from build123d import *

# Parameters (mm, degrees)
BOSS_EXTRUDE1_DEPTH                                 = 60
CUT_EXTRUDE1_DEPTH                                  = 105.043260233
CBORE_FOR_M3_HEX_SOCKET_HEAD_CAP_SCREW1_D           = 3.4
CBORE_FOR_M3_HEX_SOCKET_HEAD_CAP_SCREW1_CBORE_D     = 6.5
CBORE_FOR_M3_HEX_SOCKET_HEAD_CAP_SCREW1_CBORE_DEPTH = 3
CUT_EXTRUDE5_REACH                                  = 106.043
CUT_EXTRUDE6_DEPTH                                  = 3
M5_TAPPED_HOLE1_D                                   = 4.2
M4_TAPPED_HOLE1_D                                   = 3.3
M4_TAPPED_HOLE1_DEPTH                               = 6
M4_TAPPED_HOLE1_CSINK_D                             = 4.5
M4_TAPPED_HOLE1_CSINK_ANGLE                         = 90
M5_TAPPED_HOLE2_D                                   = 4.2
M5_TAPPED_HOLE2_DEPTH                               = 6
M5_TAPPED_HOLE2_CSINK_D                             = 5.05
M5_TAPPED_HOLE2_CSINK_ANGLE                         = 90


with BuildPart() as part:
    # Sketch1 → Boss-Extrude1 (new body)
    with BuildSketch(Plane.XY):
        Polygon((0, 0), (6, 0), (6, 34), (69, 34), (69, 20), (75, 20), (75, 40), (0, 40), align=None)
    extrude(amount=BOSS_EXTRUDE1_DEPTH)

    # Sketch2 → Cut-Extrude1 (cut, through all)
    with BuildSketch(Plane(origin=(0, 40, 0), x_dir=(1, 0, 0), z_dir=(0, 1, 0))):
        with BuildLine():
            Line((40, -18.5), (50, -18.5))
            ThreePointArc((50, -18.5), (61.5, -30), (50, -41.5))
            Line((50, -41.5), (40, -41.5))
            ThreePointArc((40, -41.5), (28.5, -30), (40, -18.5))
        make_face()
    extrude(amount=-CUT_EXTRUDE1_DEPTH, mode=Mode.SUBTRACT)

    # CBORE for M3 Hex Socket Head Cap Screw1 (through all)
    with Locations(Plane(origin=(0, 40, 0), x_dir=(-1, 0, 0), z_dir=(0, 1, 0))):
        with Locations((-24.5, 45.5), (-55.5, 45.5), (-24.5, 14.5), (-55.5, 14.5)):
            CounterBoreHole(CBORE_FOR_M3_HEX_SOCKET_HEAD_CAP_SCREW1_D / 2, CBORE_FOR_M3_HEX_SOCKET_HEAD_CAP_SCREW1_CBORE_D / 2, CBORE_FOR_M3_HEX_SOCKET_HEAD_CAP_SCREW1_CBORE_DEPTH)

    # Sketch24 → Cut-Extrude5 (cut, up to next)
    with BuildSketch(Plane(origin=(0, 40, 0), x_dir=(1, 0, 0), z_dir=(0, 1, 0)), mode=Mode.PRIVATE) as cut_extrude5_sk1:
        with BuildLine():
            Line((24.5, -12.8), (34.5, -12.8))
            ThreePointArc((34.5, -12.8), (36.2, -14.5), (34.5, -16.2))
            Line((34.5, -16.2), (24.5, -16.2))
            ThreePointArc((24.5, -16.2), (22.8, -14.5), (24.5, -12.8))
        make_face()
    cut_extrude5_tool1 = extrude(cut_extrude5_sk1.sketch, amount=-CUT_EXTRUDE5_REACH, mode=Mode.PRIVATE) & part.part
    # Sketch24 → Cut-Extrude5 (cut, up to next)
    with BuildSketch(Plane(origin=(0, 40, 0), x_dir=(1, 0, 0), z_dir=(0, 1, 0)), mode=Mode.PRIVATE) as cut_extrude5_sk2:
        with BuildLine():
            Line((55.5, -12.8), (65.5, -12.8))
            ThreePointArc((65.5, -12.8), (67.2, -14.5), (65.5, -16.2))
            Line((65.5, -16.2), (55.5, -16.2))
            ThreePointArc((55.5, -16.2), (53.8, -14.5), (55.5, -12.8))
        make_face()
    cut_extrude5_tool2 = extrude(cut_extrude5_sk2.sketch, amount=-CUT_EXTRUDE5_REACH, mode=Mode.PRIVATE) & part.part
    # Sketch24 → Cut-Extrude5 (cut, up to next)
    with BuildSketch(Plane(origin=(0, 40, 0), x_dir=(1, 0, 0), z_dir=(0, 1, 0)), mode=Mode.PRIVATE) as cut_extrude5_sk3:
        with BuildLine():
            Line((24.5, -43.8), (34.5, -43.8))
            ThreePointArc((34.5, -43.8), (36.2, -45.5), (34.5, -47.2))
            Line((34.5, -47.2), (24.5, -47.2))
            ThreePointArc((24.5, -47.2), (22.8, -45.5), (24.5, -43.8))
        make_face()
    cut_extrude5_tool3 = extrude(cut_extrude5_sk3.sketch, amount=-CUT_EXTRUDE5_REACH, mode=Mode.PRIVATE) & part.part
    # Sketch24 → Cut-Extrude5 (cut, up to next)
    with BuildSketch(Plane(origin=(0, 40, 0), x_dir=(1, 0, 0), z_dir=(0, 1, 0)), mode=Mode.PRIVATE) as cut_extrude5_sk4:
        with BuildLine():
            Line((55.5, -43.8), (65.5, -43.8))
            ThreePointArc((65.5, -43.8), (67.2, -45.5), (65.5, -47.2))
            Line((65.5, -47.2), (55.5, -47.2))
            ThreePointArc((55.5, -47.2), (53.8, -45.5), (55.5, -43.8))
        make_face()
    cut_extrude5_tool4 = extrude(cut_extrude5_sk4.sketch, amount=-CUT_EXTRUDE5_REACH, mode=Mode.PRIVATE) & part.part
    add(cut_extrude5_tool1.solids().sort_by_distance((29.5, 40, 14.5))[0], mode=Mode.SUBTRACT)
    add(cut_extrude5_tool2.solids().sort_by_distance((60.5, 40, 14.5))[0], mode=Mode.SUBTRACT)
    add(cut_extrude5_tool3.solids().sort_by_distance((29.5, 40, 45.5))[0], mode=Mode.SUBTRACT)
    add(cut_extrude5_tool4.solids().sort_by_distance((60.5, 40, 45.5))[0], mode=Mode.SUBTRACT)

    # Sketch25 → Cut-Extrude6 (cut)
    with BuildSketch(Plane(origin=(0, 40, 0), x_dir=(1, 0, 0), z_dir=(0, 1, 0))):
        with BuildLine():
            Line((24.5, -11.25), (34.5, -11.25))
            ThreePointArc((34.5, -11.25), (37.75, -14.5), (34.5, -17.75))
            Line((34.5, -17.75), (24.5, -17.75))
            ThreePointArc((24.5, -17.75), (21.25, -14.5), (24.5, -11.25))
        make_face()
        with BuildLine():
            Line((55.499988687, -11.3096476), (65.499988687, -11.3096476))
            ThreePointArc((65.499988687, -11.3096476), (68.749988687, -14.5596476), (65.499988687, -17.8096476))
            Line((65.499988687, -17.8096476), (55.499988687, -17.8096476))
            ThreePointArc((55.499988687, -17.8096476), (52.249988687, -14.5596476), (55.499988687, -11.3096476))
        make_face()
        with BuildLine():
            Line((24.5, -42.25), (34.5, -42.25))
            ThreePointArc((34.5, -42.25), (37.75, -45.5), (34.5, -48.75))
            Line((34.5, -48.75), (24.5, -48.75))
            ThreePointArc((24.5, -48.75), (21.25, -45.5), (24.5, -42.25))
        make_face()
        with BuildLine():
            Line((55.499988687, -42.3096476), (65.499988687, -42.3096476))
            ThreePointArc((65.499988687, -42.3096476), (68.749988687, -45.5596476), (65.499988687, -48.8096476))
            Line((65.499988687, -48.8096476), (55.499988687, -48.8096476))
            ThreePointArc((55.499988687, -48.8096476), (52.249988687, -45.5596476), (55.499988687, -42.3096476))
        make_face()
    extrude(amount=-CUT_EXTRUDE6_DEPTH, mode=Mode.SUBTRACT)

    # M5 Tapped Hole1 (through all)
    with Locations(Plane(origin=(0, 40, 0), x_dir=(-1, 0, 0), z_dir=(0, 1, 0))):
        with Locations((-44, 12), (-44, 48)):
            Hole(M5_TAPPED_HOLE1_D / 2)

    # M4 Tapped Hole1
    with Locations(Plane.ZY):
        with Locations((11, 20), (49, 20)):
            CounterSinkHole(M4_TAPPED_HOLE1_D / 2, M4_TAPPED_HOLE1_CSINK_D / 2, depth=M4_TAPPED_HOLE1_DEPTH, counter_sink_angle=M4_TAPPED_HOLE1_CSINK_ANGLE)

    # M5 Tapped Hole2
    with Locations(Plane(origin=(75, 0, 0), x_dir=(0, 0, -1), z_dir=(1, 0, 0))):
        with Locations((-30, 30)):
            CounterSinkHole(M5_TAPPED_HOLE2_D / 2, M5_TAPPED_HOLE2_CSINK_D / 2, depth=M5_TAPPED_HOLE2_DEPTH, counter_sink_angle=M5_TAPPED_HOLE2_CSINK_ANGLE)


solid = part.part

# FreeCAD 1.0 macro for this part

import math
import FreeCAD as App
import Part
import Sketcher

V = App.Vector


def add_polygon(sketch, points):
    """Adds a closed chain of lines whose ends are joined by coincident constraints."""
    first, n = sketch.GeometryCount, len(points)
    for a, b in zip(points, points[1:] + points[:1]):
        sketch.addGeometry(Part.LineSegment(App.Vector(*a, 0), App.Vector(*b, 0)), False)
    for i in range(n):
        sketch.addConstraint(Sketcher.Constraint("Coincident", first + i, 2, first + (i + 1) % n, 1))

doc = App.newDocument("Part")
params = doc.addObject("Spreadsheet::Sheet", "Params")
for row, (alias, value) in enumerate([
    ("sketch1_width", "6 mm"),
    ("sketch1_width2", "63 mm"),
    ("sketch1_height", "34 mm"),
    ("sketch1_height2", "14 mm"),
    ("sketch1_height3", "20 mm"),
    ("pad1_length", "60 mm"),
    ("sketch2_radius", "11.5 mm"),
    ("sketch2_width", "10 mm"),
    ("sketch3_diameter", "3.4 mm"),
    ("hole_diameter", "3.4 mm"),
    ("hole_cbore_diameter", "6.5 mm"),
    ("hole_cbore_depth", "3 mm"),
    ("sketch4_radius", "1.7 mm"),
    ("sketch4_width", "10 mm"),
    ("sketch5_radius", "1.7 mm"),
    ("sketch5_width", "10 mm"),
    ("sketch6_radius", "1.7 mm"),
    ("sketch6_width", "10 mm"),
    ("sketch7_radius", "1.7 mm"),
    ("sketch7_width", "10 mm"),
    ("sketch8_width", "10 mm"),
    ("sketch8_radius", "3.25 mm"),
    ("pocket6_length", "3 mm"),
    ("sketch9_diameter", "4.2 mm"),
    ("hole2_diameter", "4.2 mm"),
    ("sketch10_diameter", "3.3 mm"),
    ("hole3_diameter", "3.3 mm"),
    ("hole3_depth", "6 mm"),
    ("hole3_csink_diameter", "4.5 mm"),
    ("sketch11_diameter", "4.2 mm"),
    ("hole4_diameter", "4.2 mm"),
    ("hole4_depth", "6 mm"),
    ("hole4_csink_diameter", "5.05 mm"),
], start=1):
    params.set(f"A{row}", alias)
    params.set(f"B{row}", "=" + value)
    params.setAlias(f"B{row}", alias)

body = doc.addObject("PartDesign::Body", "Body")

sketch1 = doc.addObject("Sketcher::SketchObject", "Sketch")
body.addObject(sketch1)
sketch1.AttachmentSupport = (doc.XY_Plane, [""])
sketch1.MapMode = "FlatFace"
add_polygon(sketch1, [(0, 0), (6, 0), (6, 34), (69, 34), (69, 20), (75, 20), (75, 40), (0, 40)])
sketch1.addConstraint([
    Sketcher.Constraint("Horizontal", 0),
    Sketcher.Constraint("Vertical", 1),
    Sketcher.Constraint("Horizontal", 2),
    Sketcher.Constraint("Vertical", 3),
    Sketcher.Constraint("Horizontal", 4),
    Sketcher.Constraint("Vertical", 5),
    Sketcher.Constraint("Horizontal", 6),
    Sketcher.Constraint("Vertical", 7),
    Sketcher.Constraint("Coincident", 7, 2, -1, 1),
    Sketcher.Constraint("Equal", 0, 4),
    Sketcher.Constraint("DistanceX", 0, 1, 0, 2, 6.0),
    Sketcher.Constraint("DistanceX", 2, 1, 2, 2, 63.0),
    Sketcher.Constraint("DistanceY", 1, 1, 1, 2, 34.0),
    Sketcher.Constraint("DistanceY", 3, 2, 3, 1, 14.0),
    Sketcher.Constraint("DistanceY", 5, 1, 5, 2, 20.0),
])
sketch1.setExpression("Constraints[18]", "Params.sketch1_width")
sketch1.setExpression("Constraints[19]", "Params.sketch1_width2")
sketch1.setExpression("Constraints[20]", "Params.sketch1_height")
sketch1.setExpression("Constraints[21]", "Params.sketch1_height2")
sketch1.setExpression("Constraints[22]", "Params.sketch1_height3")
pad1 = doc.addObject("PartDesign::Pad", "Pad")
body.addObject(pad1)
pad1.Profile = sketch1
pad1.setExpression("Length", "Params.pad1_length")

sketch2 = doc.addObject("Sketcher::SketchObject", "Sketch001")
body.addObject(sketch2)
sketch2.AttachmentSupport = (doc.XZ_Plane, [""])
sketch2.MapMode = "FlatFace"
sketch2.AttachmentOffset = App.Placement(V(0, 0, -40), App.Rotation())
sketch2.addGeometry([
    Part.LineSegment(V(50, 18, 0), V(40, 18, 0)),
    Part.ArcOfCircle(Part.Circle(V(40, 30, 0), V(0, 0, 1), 12), math.radians(90), math.radians(270)),
    Part.LineSegment(V(40, 42, 0), V(50, 42, 0)),
    Part.ArcOfCircle(Part.Circle(V(50, 30, 0), V(0, 0, 1), 12), math.radians(-90), math.radians(90)),
], False)
sketch2.addConstraint([
    Sketcher.Constraint("Tangent", 0, 2, 1, 2),
    Sketcher.Constraint("Tangent", 1, 1, 2, 1),
    Sketcher.Constraint("Tangent", 2, 2, 3, 2),
    Sketcher.Constraint("Tangent", 3, 1, 0, 1),
    Sketcher.Constraint("Horizontal", 0),
    Sketcher.Constraint("Horizontal", 2),
    Sketcher.Constraint("Radius", 1, 11.5),
    Sketcher.Constraint("DistanceX", 0, 2, 0, 1, 10.0),
    Sketcher.Constraint("DistanceX", -1, 1, 1, 3, 40.0),
    Sketcher.Constraint("DistanceY", -1, 1, 1, 3, 30.0),
])
sketch2.setExpression("Constraints[6]", "Params.sketch2_radius")
sketch2.setExpression("Constraints[7]", "Params.sketch2_width")
pocket1 = doc.addObject("PartDesign::Pocket", "Pocket")
body.addObject(pocket1)
pocket1.Profile = sketch2
pocket1.Type = "ThroughAll"
pocket1.Reversed = True

sketch3 = doc.addObject("Sketcher::SketchObject", "Sketch002")
body.addObject(sketch3)
sketch3.AttachmentSupport = (doc.XZ_Plane, [""])
sketch3.MapMode = "FlatFace"
sketch3.AttachmentOffset = App.Placement(V(0, 0, -40), App.Rotation())
sketch3.addGeometry([
    Part.Circle(V(24.5, 45.5, 0), V(0, 0, 1), 1.7),
    Part.Circle(V(55.5, 45.5, 0), V(0, 0, 1), 1.7),
    Part.Circle(V(24.5, 14.5, 0), V(0, 0, 1), 1.7),
    Part.Circle(V(55.5, 14.5, 0), V(0, 0, 1), 1.7),
], False)
sketch3.addConstraint([
    Sketcher.Constraint("Equal", 0, 1),
    Sketcher.Constraint("Equal", 1, 2),
    Sketcher.Constraint("Equal", 2, 3),
    Sketcher.Constraint("Horizontal", 0, 3, 1, 3),
    Sketcher.Constraint("Horizontal", 2, 3, 3, 3),
    Sketcher.Constraint("Vertical", 0, 3, 2, 3),
    Sketcher.Constraint("Vertical", 1, 3, 3, 3),
    Sketcher.Constraint("Diameter", 0, 3.4),
    Sketcher.Constraint("DistanceX", 0, 3, 1, 3, 31.0),
    Sketcher.Constraint("DistanceY", 2, 3, 0, 3, 31.0),
    Sketcher.Constraint("DistanceX", -1, 1, 0, 3, 24.5),
    Sketcher.Constraint("DistanceY", -1, 1, 0, 3, 45.5),
])
sketch3.setExpression("Constraints[7]", "Params.sketch3_diameter")
doc.recompute()
hole = doc.addObject("PartDesign::Hole", "Hole")
body.addObject(hole)
hole.Profile = sketch3
hole.ThreadType = "None"
hole.setExpression("Diameter", "Params.hole_diameter")
hole.DepthType = "ThroughAll"
hole.HoleCutType = "Counterbore"
hole.setExpression("HoleCutDiameter", "Params.hole_cbore_diameter")
hole.setExpression("HoleCutDepth", "Params.hole_cbore_depth")
hole.Reversed = True

sketch4 = doc.addObject("Sketcher::SketchObject", "Sketch003")
body.addObject(sketch4)
sketch4.AttachmentSupport = (doc.XZ_Plane, [""])
sketch4.MapMode = "FlatFace"
sketch4.AttachmentOffset = App.Placement(V(0, 0, -40), App.Rotation())
sketch4.addGeometry([
    Part.LineSegment(V(34.5, 12.8, 0), V(24.5, 12.8, 0)),
    Part.ArcOfCircle(Part.Circle(V(24.5, 14.5, 0), V(0, 0, 1), 1.7), math.radians(90), math.radians(270)),
    Part.LineSegment(V(24.5, 16.2, 0), V(34.5, 16.2, 0)),
    Part.ArcOfCircle(Part.Circle(V(34.5, 14.5, 0), V(0, 0, 1), 1.7), math.radians(-90), math.radians(90)),
], False)
sketch4.addConstraint([
    Sketcher.Constraint("Tangent", 0, 2, 1, 2),
    Sketcher.Constraint("Tangent", 1, 1, 2, 1),
    Sketcher.Constraint("Tangent", 2, 2, 3, 2),
    Sketcher.Constraint("Tangent", 3, 1, 0, 1),
    Sketcher.Constraint("Horizontal", 0),
    Sketcher.Constraint("Horizontal", 2),
    Sketcher.Constraint("Radius", 1, 1.7),
    Sketcher.Constraint("DistanceX", 0, 2, 0, 1, 10.0),
    Sketcher.Constraint("DistanceX", -1, 1, 1, 3, 24.5),
    Sketcher.Constraint("DistanceY", -1, 1, 1, 3, 14.5),
])
sketch4.setExpression("Constraints[6]", "Params.sketch4_radius")
sketch4.setExpression("Constraints[7]", "Params.sketch4_width")
pocket2 = doc.addObject("PartDesign::Pocket", "Pocket001")
body.addObject(pocket2)
pocket2.Profile = sketch4
pocket2.Type = "UpToFirst"
pocket2.Reversed = True

sketch5 = doc.addObject("Sketcher::SketchObject", "Sketch004")
body.addObject(sketch5)
sketch5.AttachmentSupport = (doc.XZ_Plane, [""])
sketch5.MapMode = "FlatFace"
sketch5.AttachmentOffset = App.Placement(V(0, 0, -40), App.Rotation())
sketch5.addGeometry([
    Part.LineSegment(V(65.5, 12.8, 0), V(55.5, 12.8, 0)),
    Part.ArcOfCircle(Part.Circle(V(55.5, 14.5, 0), V(0, 0, 1), 1.7), math.radians(90), math.radians(270)),
    Part.LineSegment(V(55.5, 16.2, 0), V(65.5, 16.2, 0)),
    Part.ArcOfCircle(Part.Circle(V(65.5, 14.5, 0), V(0, 0, 1), 1.7), math.radians(-90), math.radians(90)),
], False)
sketch5.addConstraint([
    Sketcher.Constraint("Tangent", 0, 2, 1, 2),
    Sketcher.Constraint("Tangent", 1, 1, 2, 1),
    Sketcher.Constraint("Tangent", 2, 2, 3, 2),
    Sketcher.Constraint("Tangent", 3, 1, 0, 1),
    Sketcher.Constraint("Horizontal", 0),
    Sketcher.Constraint("Horizontal", 2),
    Sketcher.Constraint("Radius", 1, 1.7),
    Sketcher.Constraint("DistanceX", 0, 2, 0, 1, 10.0),
    Sketcher.Constraint("DistanceX", -1, 1, 1, 3, 55.5),
    Sketcher.Constraint("DistanceY", -1, 1, 1, 3, 14.5),
])
sketch5.setExpression("Constraints[6]", "Params.sketch5_radius")
sketch5.setExpression("Constraints[7]", "Params.sketch5_width")
pocket3 = doc.addObject("PartDesign::Pocket", "Pocket002")
body.addObject(pocket3)
pocket3.Profile = sketch5
pocket3.Type = "UpToFirst"
pocket3.Reversed = True

sketch6 = doc.addObject("Sketcher::SketchObject", "Sketch005")
body.addObject(sketch6)
sketch6.AttachmentSupport = (doc.XZ_Plane, [""])
sketch6.MapMode = "FlatFace"
sketch6.AttachmentOffset = App.Placement(V(0, 0, -40), App.Rotation())
sketch6.addGeometry([
    Part.LineSegment(V(34.5, 43.8, 0), V(24.5, 43.8, 0)),
    Part.ArcOfCircle(Part.Circle(V(24.5, 45.5, 0), V(0, 0, 1), 1.7), math.radians(90), math.radians(270)),
    Part.LineSegment(V(24.5, 47.2, 0), V(34.5, 47.2, 0)),
    Part.ArcOfCircle(Part.Circle(V(34.5, 45.5, 0), V(0, 0, 1), 1.7), math.radians(-90), math.radians(90)),
], False)
sketch6.addConstraint([
    Sketcher.Constraint("Tangent", 0, 2, 1, 2),
    Sketcher.Constraint("Tangent", 1, 1, 2, 1),
    Sketcher.Constraint("Tangent", 2, 2, 3, 2),
    Sketcher.Constraint("Tangent", 3, 1, 0, 1),
    Sketcher.Constraint("Horizontal", 0),
    Sketcher.Constraint("Horizontal", 2),
    Sketcher.Constraint("Radius", 1, 1.7),
    Sketcher.Constraint("DistanceX", 0, 2, 0, 1, 10.0),
    Sketcher.Constraint("DistanceX", -1, 1, 1, 3, 24.5),
    Sketcher.Constraint("DistanceY", -1, 1, 1, 3, 45.5),
])
sketch6.setExpression("Constraints[6]", "Params.sketch6_radius")
sketch6.setExpression("Constraints[7]", "Params.sketch6_width")
pocket4 = doc.addObject("PartDesign::Pocket", "Pocket003")
body.addObject(pocket4)
pocket4.Profile = sketch6
pocket4.Type = "UpToFirst"
pocket4.Reversed = True

sketch7 = doc.addObject("Sketcher::SketchObject", "Sketch006")
body.addObject(sketch7)
sketch7.AttachmentSupport = (doc.XZ_Plane, [""])
sketch7.MapMode = "FlatFace"
sketch7.AttachmentOffset = App.Placement(V(0, 0, -40), App.Rotation())
sketch7.addGeometry([
    Part.LineSegment(V(65.5, 43.8, 0), V(55.5, 43.8, 0)),
    Part.ArcOfCircle(Part.Circle(V(55.5, 45.5, 0), V(0, 0, 1), 1.7), math.radians(90), math.radians(270)),
    Part.LineSegment(V(55.5, 47.2, 0), V(65.5, 47.2, 0)),
    Part.ArcOfCircle(Part.Circle(V(65.5, 45.5, 0), V(0, 0, 1), 1.7), math.radians(-90), math.radians(90)),
], False)
sketch7.addConstraint([
    Sketcher.Constraint("Tangent", 0, 2, 1, 2),
    Sketcher.Constraint("Tangent", 1, 1, 2, 1),
    Sketcher.Constraint("Tangent", 2, 2, 3, 2),
    Sketcher.Constraint("Tangent", 3, 1, 0, 1),
    Sketcher.Constraint("Horizontal", 0),
    Sketcher.Constraint("Horizontal", 2),
    Sketcher.Constraint("Radius", 1, 1.7),
    Sketcher.Constraint("DistanceX", 0, 2, 0, 1, 10.0),
    Sketcher.Constraint("DistanceX", -1, 1, 1, 3, 55.5),
    Sketcher.Constraint("DistanceY", -1, 1, 1, 3, 45.5),
])
sketch7.setExpression("Constraints[6]", "Params.sketch7_radius")
sketch7.setExpression("Constraints[7]", "Params.sketch7_width")
pocket5 = doc.addObject("PartDesign::Pocket", "Pocket004")
body.addObject(pocket5)
pocket5.Profile = sketch7
pocket5.Type = "UpToFirst"
pocket5.Reversed = True

sketch8 = doc.addObject("Sketcher::SketchObject", "Sketch007")
body.addObject(sketch8)
sketch8.AttachmentSupport = (doc.XZ_Plane, [""])
sketch8.MapMode = "FlatFace"
sketch8.AttachmentOffset = App.Placement(V(0, 0, -40), App.Rotation())
sketch8.addGeometry([
    Part.LineSegment(V(34.5, 11.2, 0), V(24.5, 11.2, 0)),
    Part.ArcOfCircle(Part.Circle(V(24.5, 14.5, 0), V(0, 0, 1), 3.2), math.radians(90), math.radians(270)),
    Part.LineSegment(V(24.5, 17.8, 0), V(34.5, 17.8, 0)),
    Part.ArcOfCircle(Part.Circle(V(34.5, 14.5, 0), V(0, 0, 1), 3.2), math.radians(-90), math.radians(90)),
    Part.LineSegment(V(65.5, 11.3, 0), V(55.5, 11.3, 0)),
    Part.ArcOfCircle(Part.Circle(V(55.5, 14.6, 0), V(0, 0, 1), 3.2), math.radians(90), math.radians(270)),
    Part.LineSegment(V(55.5, 17.8, 0), V(65.5, 17.8, 0)),
    Part.ArcOfCircle(Part.Circle(V(65.5, 14.6, 0), V(0, 0, 1), 3.2), math.radians(-90), math.radians(90)),
    Part.LineSegment(V(34.5, 42.2, 0), V(24.5, 42.2, 0)),
    Part.ArcOfCircle(Part.Circle(V(24.5, 45.5, 0), V(0, 0, 1), 3.2), math.radians(90), math.radians(270)),
    Part.LineSegment(V(24.5, 48.8, 0), V(34.5, 48.8, 0)),
    Part.ArcOfCircle(Part.Circle(V(34.5, 45.5, 0), V(0, 0, 1), 3.2), math.radians(-90), math.radians(90)),
    Part.LineSegment(V(65.5, 42.3, 0), V(55.5, 42.3, 0)),
    Part.ArcOfCircle(Part.Circle(V(55.5, 45.6, 0), V(0, 0, 1), 3.2), math.radians(90), math.radians(270)),
    Part.LineSegment(V(55.5, 48.8, 0), V(65.5, 48.8, 0)),
    Part.ArcOfCircle(Part.Circle(V(65.5, 45.6, 0), V(0, 0, 1), 3.2), math.radians(-90), math.radians(90)),
], False)
sketch8.addConstraint([
    Sketcher.Constraint("Tangent", 0, 2, 1, 2),
    Sketcher.Constraint("Tangent", 1, 1, 2, 1),
    Sketcher.Constraint("Tangent", 2, 2, 3, 2),
    Sketcher.Constraint("Tangent", 3, 1, 0, 1),
    Sketcher.Constraint("Tangent", 4, 2, 5, 2),
    Sketcher.Constraint("Tangent", 5, 1, 6, 1),
    Sketcher.Constraint("Tangent", 6, 2, 7, 2),
    Sketcher.Constraint("Tangent", 7, 1, 4, 1),
    Sketcher.Constraint("Tangent", 8, 2, 9, 2),
    Sketcher.Constraint("Tangent", 9, 1, 10, 1),
    Sketcher.Constraint("Tangent", 10, 2, 11, 2),
    Sketcher.Constraint("Tangent", 11, 1, 8, 1),
    Sketcher.Constraint("Tangent", 12, 2, 13, 2),
    Sketcher.Constraint("Tangent", 13, 1, 14, 1),
    Sketcher.Constraint("Tangent", 14, 2, 15, 2),
    Sketcher.Constraint("Tangent", 15, 1, 12, 1),
    Sketcher.Constraint("Horizontal", 0),
    Sketcher.Constraint("Horizontal", 2),
    Sketcher.Constraint("Horizontal", 4),
    Sketcher.Constraint("Horizontal", 6),
    Sketcher.Constraint("Horizontal", 8),
    Sketcher.Constraint("Horizontal", 10),
    Sketcher.Constraint("Horizontal", 12),
    Sketcher.Constraint("Horizontal", 14),
    Sketcher.Constraint("Equal", 3, 5),
    Sketcher.Constraint("Equal", 7, 9),
    Sketcher.Constraint("Equal", 11, 13),
    Sketcher.Constraint("Vertical", 1, 3, 9, 3),
    Sketcher.Constraint("Vertical", 3, 3, 11, 3),
    Sketcher.Constraint("Vertical", 5, 3, 13, 3),
    Sketcher.Constraint("Vertical", 7, 3, 15, 3),
    Sketcher.Constraint("Equal", 2, 4),
    Sketcher.Constraint("DistanceX", 0, 2, 0, 1, 10.0),
    Sketcher.Constraint("Radius", 1, 3.25),
    Sketcher.Constraint("DistanceY", 1, 3, 9, 3, 31.0),
    Sketcher.Constraint("DistanceY", 5, 3, 13, 3, 31.0),
    Sketcher.Constraint("DistanceX", -1, 1, 1, 3, 24.5),
    Sketcher.Constraint("DistanceY", -1, 1, 1, 3, 14.5),
    Sketcher.Constraint("DistanceX", -1, 1, 5, 3, 55.499989),
    Sketcher.Constraint("DistanceY", -1, 1, 5, 3, 14.559648),
])
sketch8.setExpression("Constraints[32]", "Params.sketch8_width")
sketch8.setExpression("Constraints[33]", "Params.sketch8_radius")
pocket6 = doc.addObject("PartDesign::Pocket", "Pocket005")
body.addObject(pocket6)
pocket6.Profile = sketch8
pocket6.setExpression("Length", "Params.pocket6_length")
pocket6.Reversed = True

sketch9 = doc.addObject("Sketcher::SketchObject", "Sketch008")
body.addObject(sketch9)
sketch9.AttachmentSupport = (doc.XZ_Plane, [""])
sketch9.MapMode = "FlatFace"
sketch9.AttachmentOffset = App.Placement(V(0, 0, -40), App.Rotation())
sketch9.addGeometry([
    Part.Circle(V(44, 12, 0), V(0, 0, 1), 2.1),
    Part.Circle(V(44, 48, 0), V(0, 0, 1), 2.1),
], False)
sketch9.addConstraint([
    Sketcher.Constraint("Equal", 0, 1),
    Sketcher.Constraint("Vertical", 0, 3, 1, 3),
    Sketcher.Constraint("Diameter", 0, 4.2),
    Sketcher.Constraint("DistanceX", -1, 1, 0, 3, 44.0),
    Sketcher.Constraint("DistanceY", -1, 1, 0, 3, 12.0),
    Sketcher.Constraint("DistanceY", -1, 1, 1, 3, 48.0),
])
sketch9.setExpression("Constraints[2]", "Params.sketch9_diameter")
doc.recompute()
hole2 = doc.addObject("PartDesign::Hole", "Hole001")
body.addObject(hole2)
hole2.Profile = sketch9
hole2.ThreadType = "None"
hole2.setExpression("Diameter", "Params.hole2_diameter")
hole2.DepthType = "ThroughAll"
hole2.Reversed = True

sketch10 = doc.addObject("Sketcher::SketchObject", "Sketch009")
body.addObject(sketch10)
sketch10.AttachmentSupport = (doc.YZ_Plane, [""])
sketch10.MapMode = "FlatFace"
sketch10.addGeometry([
    Part.Circle(V(20, 11, 0), V(0, 0, 1), 1.6),
    Part.Circle(V(20, 49, 0), V(0, 0, 1), 1.6),
], False)
sketch10.addConstraint([
    Sketcher.Constraint("Equal", 0, 1),
    Sketcher.Constraint("Vertical", 0, 3, 1, 3),
    Sketcher.Constraint("Diameter", 0, 3.3),
    Sketcher.Constraint("DistanceX", -1, 1, 0, 3, 20.0),
    Sketcher.Constraint("DistanceY", -1, 1, 0, 3, 11.0),
    Sketcher.Constraint("DistanceY", -1, 1, 1, 3, 49.0),
])
sketch10.setExpression("Constraints[2]", "Params.sketch10_diameter")
doc.recompute()
hole3 = doc.addObject("PartDesign::Hole", "Hole002")
body.addObject(hole3)
hole3.Profile = sketch10
hole3.ThreadType = "None"
hole3.setExpression("Diameter", "Params.hole3_diameter")
hole3.DepthType = "Dimension"
hole3.setExpression("Depth", "Params.hole3_depth")
hole3.DrillPoint = "Flat"
hole3.HoleCutType = "Countersink"
hole3.setExpression("HoleCutDiameter", "Params.hole3_csink_diameter")
hole3.HoleCutCountersinkAngle = 90
hole3.Reversed = True

sketch11 = doc.addObject("Sketcher::SketchObject", "Sketch010")
body.addObject(sketch11)
sketch11.AttachmentSupport = (doc.YZ_Plane, [""])
sketch11.MapMode = "FlatFace"
sketch11.AttachmentOffset = App.Placement(V(0, 0, 75), App.Rotation())
sketch11.addGeometry(Part.Circle(V(30, 30, 0), V(0, 0, 1), 2.1), False)
sketch11.addConstraint([
    Sketcher.Constraint("Diameter", 0, 4.2),
    Sketcher.Constraint("DistanceX", -1, 1, 0, 3, 30.0),
    Sketcher.Constraint("DistanceY", -1, 1, 0, 3, 30.0),
])
sketch11.setExpression("Constraints[0]", "Params.sketch11_diameter")
doc.recompute()
hole4 = doc.addObject("PartDesign::Hole", "Hole003")
body.addObject(hole4)
hole4.Profile = sketch11
hole4.ThreadType = "None"
hole4.setExpression("Diameter", "Params.hole4_diameter")
hole4.DepthType = "Dimension"
hole4.setExpression("Depth", "Params.hole4_depth")
hole4.DrillPoint = "Flat"
hole4.HoleCutType = "Countersink"
hole4.setExpression("HoleCutDiameter", "Params.hole4_csink_diameter")
hole4.HoleCutCountersinkAngle = 90

doc.recompute()
